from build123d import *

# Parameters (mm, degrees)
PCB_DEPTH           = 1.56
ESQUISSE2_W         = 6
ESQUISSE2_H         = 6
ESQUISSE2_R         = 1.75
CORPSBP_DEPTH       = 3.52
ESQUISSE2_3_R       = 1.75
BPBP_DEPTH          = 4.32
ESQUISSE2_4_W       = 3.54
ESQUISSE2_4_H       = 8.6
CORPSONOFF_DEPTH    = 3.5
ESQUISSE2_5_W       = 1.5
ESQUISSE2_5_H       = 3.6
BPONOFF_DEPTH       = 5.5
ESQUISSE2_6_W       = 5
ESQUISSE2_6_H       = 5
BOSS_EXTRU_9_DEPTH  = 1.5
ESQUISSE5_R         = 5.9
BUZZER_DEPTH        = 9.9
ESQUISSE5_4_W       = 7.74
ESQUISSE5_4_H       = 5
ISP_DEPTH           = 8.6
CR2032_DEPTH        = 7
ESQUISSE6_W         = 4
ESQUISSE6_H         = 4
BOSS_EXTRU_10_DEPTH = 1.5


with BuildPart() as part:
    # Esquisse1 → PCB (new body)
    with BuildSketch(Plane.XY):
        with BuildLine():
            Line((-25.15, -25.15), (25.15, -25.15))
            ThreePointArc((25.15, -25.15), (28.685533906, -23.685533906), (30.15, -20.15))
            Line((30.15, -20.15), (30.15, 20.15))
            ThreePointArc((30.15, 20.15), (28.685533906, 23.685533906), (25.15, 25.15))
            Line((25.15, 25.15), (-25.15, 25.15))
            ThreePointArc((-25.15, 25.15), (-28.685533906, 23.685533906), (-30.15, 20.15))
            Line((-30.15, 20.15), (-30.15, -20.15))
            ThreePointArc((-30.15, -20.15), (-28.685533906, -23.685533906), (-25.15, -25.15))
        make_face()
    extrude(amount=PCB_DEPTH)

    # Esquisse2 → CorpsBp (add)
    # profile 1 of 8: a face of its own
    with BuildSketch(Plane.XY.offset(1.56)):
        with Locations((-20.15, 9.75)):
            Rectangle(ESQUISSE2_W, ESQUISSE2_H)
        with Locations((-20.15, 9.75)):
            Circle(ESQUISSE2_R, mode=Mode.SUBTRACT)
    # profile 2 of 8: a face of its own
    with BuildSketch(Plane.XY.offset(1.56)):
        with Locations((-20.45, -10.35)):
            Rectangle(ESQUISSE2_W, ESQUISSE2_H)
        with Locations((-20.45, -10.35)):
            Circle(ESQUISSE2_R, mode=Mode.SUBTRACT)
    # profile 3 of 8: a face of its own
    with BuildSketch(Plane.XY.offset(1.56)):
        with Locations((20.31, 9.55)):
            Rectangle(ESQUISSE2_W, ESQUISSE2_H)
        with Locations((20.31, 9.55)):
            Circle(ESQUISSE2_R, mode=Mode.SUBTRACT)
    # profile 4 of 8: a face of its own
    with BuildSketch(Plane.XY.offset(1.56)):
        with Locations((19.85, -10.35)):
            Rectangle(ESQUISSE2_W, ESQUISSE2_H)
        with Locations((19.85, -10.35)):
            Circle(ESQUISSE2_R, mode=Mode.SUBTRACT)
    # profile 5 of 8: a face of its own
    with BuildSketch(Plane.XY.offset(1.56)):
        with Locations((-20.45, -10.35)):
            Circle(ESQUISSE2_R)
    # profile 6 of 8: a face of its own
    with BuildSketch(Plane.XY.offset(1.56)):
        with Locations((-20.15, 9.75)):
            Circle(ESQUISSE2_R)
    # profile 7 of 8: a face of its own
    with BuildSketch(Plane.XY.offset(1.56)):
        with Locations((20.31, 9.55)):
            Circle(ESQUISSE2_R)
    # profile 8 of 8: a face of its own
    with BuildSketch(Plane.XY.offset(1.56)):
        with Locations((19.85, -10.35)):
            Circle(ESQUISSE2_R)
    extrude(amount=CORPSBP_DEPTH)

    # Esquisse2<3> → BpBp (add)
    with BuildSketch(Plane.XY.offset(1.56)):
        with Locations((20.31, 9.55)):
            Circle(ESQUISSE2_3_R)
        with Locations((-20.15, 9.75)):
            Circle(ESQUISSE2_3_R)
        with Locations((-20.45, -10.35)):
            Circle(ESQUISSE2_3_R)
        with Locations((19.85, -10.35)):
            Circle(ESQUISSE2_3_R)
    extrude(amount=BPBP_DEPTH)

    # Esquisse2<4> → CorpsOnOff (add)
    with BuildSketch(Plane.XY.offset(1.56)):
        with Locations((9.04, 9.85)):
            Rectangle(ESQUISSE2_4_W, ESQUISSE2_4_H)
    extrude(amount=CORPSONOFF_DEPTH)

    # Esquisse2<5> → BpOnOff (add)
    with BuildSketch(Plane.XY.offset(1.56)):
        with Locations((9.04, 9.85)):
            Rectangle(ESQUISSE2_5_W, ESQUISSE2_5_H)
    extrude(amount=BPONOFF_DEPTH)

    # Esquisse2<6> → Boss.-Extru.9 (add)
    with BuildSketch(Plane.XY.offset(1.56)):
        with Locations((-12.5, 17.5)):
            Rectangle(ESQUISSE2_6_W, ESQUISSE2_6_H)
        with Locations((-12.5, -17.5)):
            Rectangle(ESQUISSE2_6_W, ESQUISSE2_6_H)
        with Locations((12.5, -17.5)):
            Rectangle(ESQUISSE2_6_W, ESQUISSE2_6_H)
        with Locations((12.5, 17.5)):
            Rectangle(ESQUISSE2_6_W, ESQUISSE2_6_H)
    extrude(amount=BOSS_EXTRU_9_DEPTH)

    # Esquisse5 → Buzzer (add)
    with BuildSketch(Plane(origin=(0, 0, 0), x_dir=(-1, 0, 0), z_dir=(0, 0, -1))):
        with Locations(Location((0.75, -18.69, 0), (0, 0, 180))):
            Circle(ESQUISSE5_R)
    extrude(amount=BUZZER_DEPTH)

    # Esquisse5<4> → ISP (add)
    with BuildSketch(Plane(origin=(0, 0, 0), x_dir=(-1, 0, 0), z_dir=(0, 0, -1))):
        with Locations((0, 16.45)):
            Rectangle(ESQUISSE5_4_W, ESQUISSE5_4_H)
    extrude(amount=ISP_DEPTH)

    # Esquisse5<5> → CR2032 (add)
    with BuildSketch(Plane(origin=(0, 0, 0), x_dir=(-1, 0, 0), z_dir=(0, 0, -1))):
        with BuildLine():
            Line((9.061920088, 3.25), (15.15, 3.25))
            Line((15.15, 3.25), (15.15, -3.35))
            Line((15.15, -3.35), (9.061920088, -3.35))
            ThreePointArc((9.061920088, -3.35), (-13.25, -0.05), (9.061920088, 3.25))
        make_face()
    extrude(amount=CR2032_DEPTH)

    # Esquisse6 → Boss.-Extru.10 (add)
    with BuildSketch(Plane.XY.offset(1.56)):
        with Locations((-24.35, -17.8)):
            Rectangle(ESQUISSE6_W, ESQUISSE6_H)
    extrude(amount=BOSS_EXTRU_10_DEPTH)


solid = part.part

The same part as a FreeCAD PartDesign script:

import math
import FreeCAD as App
import Part
import Sketcher

V = App.Vector
Q = App.Units.Quantity


def add_polygon(sketch, points):
    """Adds a closed chain of lines whose ends are joined by coincident constraints."""
    first, n = sketch.GeometryCount, len(points)
    for a, b in zip(points, points[1:] + points[:1]):
        sketch.addGeometry(Part.LineSegment(App.Vector(*a, 0), App.Vector(*b, 0)), False)
    for i in range(n):
        sketch.addConstraint(Sketcher.Constraint("Coincident", first + i, 2, first + (i + 1) % n, 1))

doc = App.newDocument("Part")
body = doc.addObject("PartDesign::Body", "Body")

sketch1 = doc.addObject("Sketcher::SketchObject", "Sketch")
body.addObject(sketch1)
sketch1.AttachmentSupport = (doc.XY_Plane, [""])
sketch1.MapMode = "FlatFace"
sketch1.addGeometry(Part.LineSegment(V(-25, -25, 0), V(25, -25, 0)), False)
sketch1.addGeometry(Part.ArcOfCircle(Part.Circle(V(25, -20, 0), V(0, 0, 1), 5), math.radians(-90), math.radians(0)), False)
sketch1.addGeometry(Part.LineSegment(V(30, -20, 0), V(30, 20, 0)), False)
sketch1.addGeometry(Part.ArcOfCircle(Part.Circle(V(25, 20, 0), V(0, 0, 1), 5), math.radians(0), math.radians(90)), False)
sketch1.addGeometry(Part.LineSegment(V(25, 25, 0), V(-25, 25, 0)), False)
sketch1.addGeometry(Part.ArcOfCircle(Part.Circle(V(-25, 20, 0), V(0, 0, 1), 5), math.radians(90), math.radians(180)), False)
sketch1.addGeometry(Part.LineSegment(V(-30, 20, 0), V(-30, -20, 0)), False)
sketch1.addGeometry(Part.ArcOfCircle(Part.Circle(V(-25, -20, 0), V(0, 0, 1), 5), math.radians(180), math.radians(270)), False)
sketch1.addConstraint(Sketcher.Constraint("Tangent", 0, 2, 1, 1))
sketch1.addConstraint(Sketcher.Constraint("Tangent", 1, 2, 2, 1))
sketch1.addConstraint(Sketcher.Constraint("Tangent", 2, 2, 3, 1))
sketch1.addConstraint(Sketcher.Constraint("Tangent", 3, 2, 4, 1))
sketch1.addConstraint(Sketcher.Constraint("Tangent", 4, 2, 5, 1))
sketch1.addConstraint(Sketcher.Constraint("Tangent", 5, 2, 6, 1))
sketch1.addConstraint(Sketcher.Constraint("Tangent", 6, 2, 7, 1))
sketch1.addConstraint(Sketcher.Constraint("Tangent", 7, 2, 0, 1))
sketch1.addConstraint(Sketcher.Constraint("Horizontal", 0))
sketch1.addConstraint(Sketcher.Constraint("Vertical", 2))
sketch1.addConstraint(Sketcher.Constraint("Horizontal", 4))
sketch1.addConstraint(Sketcher.Constraint("Vertical", 6))
sketch1.addConstraint(Sketcher.Constraint("Equal", 1, 3))
sketch1.addConstraint(Sketcher.Constraint("Equal", 3, 5))
sketch1.addConstraint(Sketcher.Constraint("Equal", 5, 7))
sketch1.addConstraint(Sketcher.Constraint("Symmetric", 1, 3, 5, 3, -1, 1))
sketch1.addConstraint(Sketcher.Constraint("Radius", 1, Q("5 mm")))
sketch1.addConstraint(Sketcher.Constraint("DistanceX", 0, 1, 0, 2, Q("50.3 mm")))
sketch1.addConstraint(Sketcher.Constraint("DistanceY", 2, 1, 2, 2, Q("40.3 mm")))
pad1 = doc.addObject("PartDesign::Pad", "Pad")
body.addObject(pad1)
pad1.Profile = sketch1
pad1.Length = 1.56

sketch2 = doc.addObject("Sketcher::SketchObject", "Sketch001")
body.addObject(sketch2)
sketch2.AttachmentSupport = (doc.XY_Plane, [""])
sketch2.MapMode = "FlatFace"
sketch2.AttachmentOffset = App.Placement(V(0, 0, 1.56), App.Rotation())
add_polygon(sketch2, [(-23, 13), (-23, 7), (-17, 7), (-17, 13)])
add_polygon(sketch2, [(-23, -7), (-23, -13), (-17, -13), (-17, -7)])
add_polygon(sketch2, [(17, 13), (17, 7), (23, 7), (23, 13)])
add_polygon(sketch2, [(17, -7), (17, -13), (23, -13), (23, -7)])
sketch2.addConstraint(Sketcher.Constraint("Vertical", 0))
sketch2.addConstraint(Sketcher.Constraint("Horizontal", 1))
sketch2.addConstraint(Sketcher.Constraint("Vertical", 2))
sketch2.addConstraint(Sketcher.Constraint("Horizontal", 3))
sketch2.addConstraint(Sketcher.Constraint("Vertical", 4))
sketch2.addConstraint(Sketcher.Constraint("Horizontal", 5))
sketch2.addConstraint(Sketcher.Constraint("Vertical", 6))
sketch2.addConstraint(Sketcher.Constraint("Horizontal", 7))
sketch2.addConstraint(Sketcher.Constraint("Vertical", 8))
sketch2.addConstraint(Sketcher.Constraint("Horizontal", 9))
sketch2.addConstraint(Sketcher.Constraint("Vertical", 10))
sketch2.addConstraint(Sketcher.Constraint("Horizontal", 11))
sketch2.addConstraint(Sketcher.Constraint("Vertical", 12))
sketch2.addConstraint(Sketcher.Constraint("Horizontal", 13))
sketch2.addConstraint(Sketcher.Constraint("Vertical", 14))
sketch2.addConstraint(Sketcher.Constraint("Horizontal", 15))
sketch2.addConstraint(Sketcher.Constraint("Horizontal", 5, 2, 12, 2))
sketch2.addConstraint(Sketcher.Constraint("Horizontal", 7, 2, 14, 2))
sketch2.addConstraint(Sketcher.Constraint("Equal", 3, 5))
sketch2.addConstraint(Sketcher.Constraint("Equal", 7, 9))
sketch2.addConstraint(Sketcher.Constraint("Equal", 11, 13))
sketch2.addConstraint(Sketcher.Constraint("Equal", 15, 0))
sketch2.addConstraint(Sketcher.Constraint("Equal", 2, 4))
sketch2.addConstraint(Sketcher.Constraint("Equal", 6, 8))
sketch2.addConstraint(Sketcher.Constraint("DistanceX", 1, 1, 1, 2, Q("6 mm")))
sketch2.addConstraint(Sketcher.Constraint("DistanceX", 4, 2, 0, 2, Q("0.3 mm")))
sketch2.addConstraint(Sketcher.Constraint("DistanceY", 4, 2, 0, 2, Q("20.1 mm")))
sketch2.addConstraint(Sketcher.Constraint("DistanceY", 8, 2, 1, 2, Q("0.2 mm")))
sketch2.addConstraint(Sketcher.Constraint("DistanceX", 5, 2, 12, 2, Q("34.3 mm")))
sketch2.addConstraint(Sketcher.Constraint("DistanceX", 0, 2, -1, 1, Q("23.15 mm")))
sketch2.addConstraint(Sketcher.Constraint("DistanceY", -1, 1, 0, 2, Q("6.75 mm")))
sketch2.addConstraint(Sketcher.Constraint("DistanceX", -1, 1, 8, 2, Q("17.31 mm")))
pad2 = doc.addObject("PartDesign::Pad", "Pad001")
body.addObject(pad2)
pad2.Profile = sketch2
pad2.Length = 3.52

sketch3 = doc.addObject("Sketcher::SketchObject", "Sketch002")
body.addObject(sketch3)
sketch3.AttachmentSupport = (doc.XY_Plane, [""])
sketch3.MapMode = "FlatFace"
sketch3.AttachmentOffset = App.Placement(V(0, 0, 1.56), App.Rotation())
sketch3.addGeometry(Part.Circle(V(20.3, 9.6, 0), V(0, 0, 1), 1.8), False)
sketch3.addGeometry(Part.Circle(V(-20.1, 9.8, 0), V(0, 0, 1), 1.8), False)
sketch3.addGeometry(Part.Circle(V(-20.4, -10.3, 0), V(0, 0, 1), 1.8), False)
sketch3.addGeometry(Part.Circle(V(19.9, -10.3, 0), V(0, 0, 1), 1.8), False)
sketch3.addConstraint(Sketcher.Constraint("Equal", 0, 1))
sketch3.addConstraint(Sketcher.Constraint("Equal", 1, 2))
sketch3.addConstraint(Sketcher.Constraint("Equal", 2, 3))
sketch3.addConstraint(Sketcher.Constraint("Horizontal", 2, 3, 3, 3))
sketch3.addConstraint(Sketcher.Constraint("Diameter", 0, Q("3.5 mm")))
sketch3.addConstraint(Sketcher.Constraint("DistanceX", 1, 3, 3, 3, Q("40 mm")))
sketch3.addConstraint(Sketcher.Constraint("DistanceY", 0, 3, 1, 3, Q("0.2 mm")))
sketch3.addConstraint(Sketcher.Constraint("DistanceX", 2, 3, 1, 3, Q("0.3 mm")))
sketch3.addConstraint(Sketcher.Constraint("DistanceY", 2, 3, 1, 3, Q("20.1 mm")))
sketch3.addConstraint(Sketcher.Constraint("DistanceX", -1, 1, 0, 3, Q("20.31 mm")))
sketch3.addConstraint(Sketcher.Constraint("DistanceY", -1, 1, 0, 3, Q("9.55 mm")))
sketch3.addConstraint(Sketcher.Constraint("DistanceX", 1, 3, -1, 1, Q("20.15 mm")))
pad3 = doc.addObject("PartDesign::Pad", "Pad002")
body.addObject(pad3)
pad3.Profile = sketch3
pad3.Length = 4.32

sketch4 = doc.addObject("Sketcher::SketchObject", "Sketch003")
body.addObject(sketch4)
sketch4.AttachmentSupport = (doc.XY_Plane, [""])
sketch4.MapMode = "FlatFace"
sketch4.AttachmentOffset = App.Placement(V(0, 0, 1.56), App.Rotation())
add_polygon(sketch4, [(7.3, 14.2), (7.3, 5.5), (10.8, 5.5), (10.8, 14.2)])
sketch4.addConstraint(Sketcher.Constraint("Vertical", 0))
sketch4.addConstraint(Sketcher.Constraint("Horizontal", 1))
sketch4.addConstraint(Sketcher.Constraint("Vertical", 2))
sketch4.addConstraint(Sketcher.Constraint("Horizontal", 3))
sketch4.addConstraint(Sketcher.Constraint("DistanceY", 0, 2, 0, 1, Q("8.6 mm")))
sketch4.addConstraint(Sketcher.Constraint("DistanceX", 1, 1, 1, 2, Q("3.54 mm")))
sketch4.addConstraint(Sketcher.Constraint("DistanceX", -1, 1, 0, 2, Q("7.27 mm")))
sketch4.addConstraint(Sketcher.Constraint("DistanceY", -1, 1, 0, 2, Q("5.55 mm")))
pad4 = doc.addObject("PartDesign::Pad", "Pad003")
body.addObject(pad4)
pad4.Profile = sketch4
pad4.Length = 3.5

sketch5 = doc.addObject("Sketcher::SketchObject", "Sketch004")
body.addObject(sketch5)
sketch5.AttachmentSupport = (doc.XY_Plane, [""])
sketch5.MapMode = "FlatFace"
sketch5.AttachmentOffset = App.Placement(V(0, 0, 1.56), App.Rotation())
add_polygon(sketch5, [(8.3, 11.7), (8.3, 8.1), (9.8, 8.1), (9.8, 11.7)])
sketch5.addConstraint(Sketcher.Constraint("Vertical", 0))
sketch5.addConstraint(Sketcher.Constraint("Horizontal", 1))
sketch5.addConstraint(Sketcher.Constraint("Vertical", 2))
sketch5.addConstraint(Sketcher.Constraint("Horizontal", 3))
sketch5.addConstraint(Sketcher.Constraint("DistanceX", 1, 1, 1, 2, Q("1.5 mm")))
sketch5.addConstraint(Sketcher.Constraint("DistanceY", 0, 2, 0, 1, Q("3.6 mm")))
sketch5.addConstraint(Sketcher.Constraint("DistanceX", -1, 1, 0, 2, Q("8.29 mm")))
sketch5.addConstraint(Sketcher.Constraint("DistanceY", -1, 1, 0, 2, Q("8.05 mm")))
pad5 = doc.addObject("PartDesign::Pad", "Pad004")
body.addObject(pad5)
pad5.Profile = sketch5
pad5.Length = 5.5

sketch6 = doc.addObject("Sketcher::SketchObject", "Sketch005")
body.addObject(sketch6)
sketch6.AttachmentSupport = (doc.XY_Plane, [""])
sketch6.MapMode = "FlatFace"
sketch6.AttachmentOffset = App.Placement(V(0, 0, 1.56), App.Rotation())
add_polygon(sketch6, [(-15, 20), (-15, 15), (-10, 15), (-10, 20)])
add_polygon(sketch6, [(-15, -15), (-15, -20), (-10, -20), (-10, -15)])
add_polygon(sketch6, [(10, -15), (10, -20), (15, -20), (15, -15)])
add_polygon(sketch6, [(10, 20), (10, 15), (15, 15), (15, 20)])
sketch6.addConstraint(Sketcher.Constraint("Vertical", 0))
sketch6.addConstraint(Sketcher.Constraint("Horizontal", 1))
sketch6.addConstraint(Sketcher.Constraint("Vertical", 2))
sketch6.addConstraint(Sketcher.Constraint("Horizontal", 3))
sketch6.addConstraint(Sketcher.Constraint("Vertical", 4))
sketch6.addConstraint(Sketcher.Constraint("Horizontal", 5))
sketch6.addConstraint(Sketcher.Constraint("Vertical", 6))
sketch6.addConstraint(Sketcher.Constraint("Horizontal", 7))
sketch6.addConstraint(Sketcher.Constraint("Vertical", 8))
sketch6.addConstraint(Sketcher.Constraint("Horizontal", 9))
sketch6.addConstraint(Sketcher.Constraint("Vertical", 10))
sketch6.addConstraint(Sketcher.Constraint("Horizontal", 11))
sketch6.addConstraint(Sketcher.Constraint("Vertical", 12))
sketch6.addConstraint(Sketcher.Constraint("Horizontal", 13))
sketch6.addConstraint(Sketcher.Constraint("Vertical", 14))
sketch6.addConstraint(Sketcher.Constraint("Horizontal", 15))
sketch6.addConstraint(Sketcher.Constraint("Symmetric", 2, 2, 8, 2, -1, 1))
sketch6.addConstraint(Sketcher.Constraint("Symmetric", 0, 2, 10, 2, -1, 1))
sketch6.addConstraint(Sketcher.Constraint("Symmetric", 6, 2, 12, 2, -1, 1))
sketch6.addConstraint(Sketcher.Constraint("Symmetric", 4, 2, 14, 2, -1, 1))
sketch6.addConstraint(Sketcher.Constraint("Symmetric", 5, 2, 8, 2, -2))
sketch6.addConstraint(Sketcher.Constraint("Symmetric", 7, 2, 10, 2, -2))
sketch6.addConstraint(Sketcher.Constraint("Equal", 15, 0))
sketch6.addConstraint(Sketcher.Constraint("DistanceX", 1, 1, 1, 2, Q("5 mm")))
sketch6.addConstraint(Sketcher.Constraint("DistanceX", 0, 2, -1, 1, Q("15 mm")))
sketch6.addConstraint(Sketcher.Constraint("DistanceY", -1, 1, 0, 2, Q("15 mm")))
pad6 = doc.addObject("PartDesign::Pad", "Pad005")
body.addObject(pad6)
pad6.Profile = sketch6
pad6.Length = 1.5

sketch7 = doc.addObject("Sketcher::SketchObject", "Sketch006")
body.addObject(sketch7)
sketch7.AttachmentSupport = (doc.XY_Plane, [""])
sketch7.MapMode = "FlatFace"
sketch7.addGeometry(Part.Circle(V(-1, -19, 0), V(0, 0, 1), 6), False)
sketch7.addConstraint(Sketcher.Constraint("Diameter", 0, Q("11.8 mm")))
sketch7.addConstraint(Sketcher.Constraint("DistanceX", 0, 3, -1, 1, Q("0.75 mm")))
sketch7.addConstraint(Sketcher.Constraint("DistanceY", 0, 3, -1, 1, Q("18.69 mm")))
pad7 = doc.addObject("PartDesign::Pad", "Pad006")
body.addObject(pad7)
pad7.Profile = sketch7
pad7.Length = 9.9
pad7.Reversed = True

sketch8 = doc.addObject("Sketcher::SketchObject", "Sketch007")
body.addObject(sketch8)
sketch8.AttachmentSupport = (doc.XY_Plane, [""])
sketch8.MapMode = "FlatFace"
add_polygon(sketch8, [(4, 19), (4, 14), (-4, 14), (-4, 19)])
sketch8.addConstraint(Sketcher.Constraint("Vertical", 0))
sketch8.addConstraint(Sketcher.Constraint("Horizontal", 1))
sketch8.addConstraint(Sketcher.Constraint("Vertical", 2))
sketch8.addConstraint(Sketcher.Constraint("Horizontal", 3))
sketch8.addConstraint(Sketcher.Constraint("DistanceY", 0, 2, 0, 1, Q("5 mm")))
sketch8.addConstraint(Sketcher.Constraint("DistanceX", 1, 2, 1, 1, Q("7.74 mm")))
sketch8.addConstraint(Sketcher.Constraint("DistanceX", -1, 1, 0, 2, Q("3.87 mm")))
sketch8.addConstraint(Sketcher.Constraint("DistanceY", -1, 1, 0, 2, Q("13.95 mm")))
pad8 = doc.addObject("PartDesign::Pad", "Pad007")
body.addObject(pad8)
pad8.Profile = sketch8
pad8.Length = 8.6
pad8.Reversed = True

sketch9 = doc.addObject("Sketcher::SketchObject", "Sketch008")
body.addObject(sketch9)
sketch9.AttachmentSupport = (doc.XY_Plane, [""])
sketch9.MapMode = "FlatFace"
sketch9.addGeometry(Part.LineSegment(V(-15, 3, 0), V(-9, 3, 0)), False)
sketch9.addGeometry(Part.ArcOfCircle(Part.Circle(V(2, 0, 0), V(0, 0, 1), 11), math.radians(-163), math.radians(163)), False)
sketch9.addGeometry(Part.LineSegment(V(-9, -3, 0), V(-15, -3, 0)), False)
sketch9.addGeometry(Part.LineSegment(V(-15, -3, 0), V(-15, 3, 0)), False)
sketch9.addConstraint(Sketcher.Constraint("Coincident", 0, 2, 1, 2))
sketch9.addConstraint(Sketcher.Constraint("Coincident", 1, 1, 2, 1))
sketch9.addConstraint(Sketcher.Constraint("Coincident", 2, 2, 3, 1))
sketch9.addConstraint(Sketcher.Constraint("Coincident", 3, 2, 0, 1))
sketch9.addConstraint(Sketcher.Constraint("Horizontal", 0))
sketch9.addConstraint(Sketcher.Constraint("Horizontal", 2))
sketch9.addConstraint(Sketcher.Constraint("Vertical", 3))
sketch9.addConstraint(Sketcher.Constraint("Vertical", 0, 2, 1, 1))
sketch9.addConstraint(Sketcher.Constraint("Radius", 1, Q("11.4 mm")))
sketch9.addConstraint(Sketcher.Constraint("DistanceY", 3, 1, 3, 2, Q("6.6 mm")))
sketch9.addConstraint(Sketcher.Constraint("DistanceX", 2, 2, 1, 3, Q("17 mm")))
sketch9.addConstraint(Sketcher.Constraint("DistanceX", -1, 1, 1, 3, Q("1.85 mm")))
sketch9.addConstraint(Sketcher.Constraint("DistanceY", 1, 3, -1, 1, Q("0.05 mm")))
pad9 = doc.addObject("PartDesign::Pad", "Pad008")
body.addObject(pad9)
pad9.Profile = sketch9
pad9.Length = 7
pad9.Reversed = True

sketch10 = doc.addObject("Sketcher::SketchObject", "Sketch009")
body.addObject(sketch10)
sketch10.AttachmentSupport = (doc.XY_Plane, [""])
sketch10.MapMode = "FlatFace"
sketch10.AttachmentOffset = App.Placement(V(0, 0, 1.56), App.Rotation())
add_polygon(sketch10, [(-26.4, -15.8), (-26.4, -19.8), (-22.4, -19.8), (-22.4, -15.8)])
sketch10.addConstraint(Sketcher.Constraint("Vertical", 0))
sketch10.addConstraint(Sketcher.Constraint("Horizontal", 1))
sketch10.addConstraint(Sketcher.Constraint("Vertical", 2))
sketch10.addConstraint(Sketcher.Constraint("Horizontal", 3))
sketch10.addConstraint(Sketcher.Constraint("Equal", 3, 0))
sketch10.addConstraint(Sketcher.Constraint("DistanceX", 1, 1, 1, 2, Q("4 mm")))
sketch10.addConstraint(Sketcher.Constraint("DistanceY", 0, 2, -1, 1, Q("19.8 mm")))
sketch10.addConstraint(Sketcher.Constraint("DistanceX", 0, 2, -1, 1, Q("26.35 mm")))
pad10 = doc.addObject("PartDesign::Pad", "Pad009")
body.addObject(pad10)
pad10.Profile = sketch10
pad10.Length = 1.5

doc.recompute()
